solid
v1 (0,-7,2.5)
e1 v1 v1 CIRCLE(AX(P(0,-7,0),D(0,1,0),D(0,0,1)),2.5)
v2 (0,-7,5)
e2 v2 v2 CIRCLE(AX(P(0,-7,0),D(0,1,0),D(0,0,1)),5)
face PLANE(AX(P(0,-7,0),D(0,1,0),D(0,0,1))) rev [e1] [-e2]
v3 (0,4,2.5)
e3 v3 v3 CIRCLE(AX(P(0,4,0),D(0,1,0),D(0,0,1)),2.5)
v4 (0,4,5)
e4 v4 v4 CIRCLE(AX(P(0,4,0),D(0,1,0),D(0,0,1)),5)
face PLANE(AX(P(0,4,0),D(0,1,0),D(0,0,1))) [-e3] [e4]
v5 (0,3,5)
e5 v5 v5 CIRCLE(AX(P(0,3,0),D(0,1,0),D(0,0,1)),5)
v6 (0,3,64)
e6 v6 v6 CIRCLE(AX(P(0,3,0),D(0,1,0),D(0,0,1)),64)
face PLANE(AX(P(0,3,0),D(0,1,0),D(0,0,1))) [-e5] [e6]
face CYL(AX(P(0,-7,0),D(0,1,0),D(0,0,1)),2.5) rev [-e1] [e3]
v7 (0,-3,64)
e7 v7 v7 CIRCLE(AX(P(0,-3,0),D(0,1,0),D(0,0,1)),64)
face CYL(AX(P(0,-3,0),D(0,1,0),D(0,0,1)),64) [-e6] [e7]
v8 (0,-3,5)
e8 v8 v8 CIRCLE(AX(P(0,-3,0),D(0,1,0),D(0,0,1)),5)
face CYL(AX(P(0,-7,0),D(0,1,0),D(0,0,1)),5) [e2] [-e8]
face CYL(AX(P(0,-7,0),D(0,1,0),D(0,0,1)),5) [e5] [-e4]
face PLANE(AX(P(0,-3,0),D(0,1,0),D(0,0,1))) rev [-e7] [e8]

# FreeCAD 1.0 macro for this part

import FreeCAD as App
import Part
import Sketcher
from FreeCAD import Vector

doc = App.newDocument("Part")
params = doc.addObject("Spreadsheet::Sheet", "Params")
for row, (alias, value) in enumerate([
    ("sketch1_diameter", "128 mm"),
    ("pad1_length", "3 mm"),
    ("pad1_length2", "3 mm"),
    ("sketch2_diameter", "10 mm"),
    ("pad2_length", "4 mm"),
    ("pad2_length2", "7 mm"),
    ("sketch3_diameter", "5 mm"),
], start=1):
    params.set(f"A{row}", alias)
    params.set(f"B{row}", "=" + value)
    params.setAlias(f"B{row}", alias)

body = doc.addObject("PartDesign::Body", "Body")

# Sketch on XZ plane
sketch1 = doc.addObject("Sketcher::SketchObject", "Sketch")
body.addObject(sketch1)
sketch1.AttachmentSupport = (doc.XZ_Plane, [""])
sketch1.MapMode = "FlatFace"
sketch1.addGeometry(Part.Circle(Vector(0, 0, 0), Vector(0, 0, 1), 64), False)
sketch1.addConstraint([
    Sketcher.Constraint("Coincident", 0, 3, -1, 1),
    Sketcher.Constraint("Diameter", 0, 128.0),
])
sketch1.setExpression("Constraints[1]", "Params.sketch1_diameter")
pad1 = doc.addObject("PartDesign::Pad", "Pad")
body.addObject(pad1)
pad1.Profile = sketch1
pad1.Type = "TwoLengths"
pad1.setExpression("Length", "Params.pad1_length")
pad1.setExpression("Length2", "Params.pad1_length2")
pad1.Reversed = True

# Sketch on XZ plane
sketch2 = doc.addObject("Sketcher::SketchObject", "Sketch001")
body.addObject(sketch2)
sketch2.AttachmentSupport = (doc.XZ_Plane, [""])
sketch2.MapMode = "FlatFace"
sketch2.addGeometry(Part.Circle(Vector(0, 0, 0), Vector(0, 0, 1), 5), False)
sketch2.addConstraint([
    Sketcher.Constraint("Coincident", 0, 3, -1, 1),
    Sketcher.Constraint("Diameter", 0, 10.0),
])
sketch2.setExpression("Constraints[1]", "Params.sketch2_diameter")
pad2 = doc.addObject("PartDesign::Pad", "Pad001")
body.addObject(pad2)
pad2.Profile = sketch2
pad2.Type = "TwoLengths"
pad2.setExpression("Length", "Params.pad2_length")
pad2.setExpression("Length2", "Params.pad2_length2")
pad2.Reversed = True

# Sketch on XZ plane
sketch3 = doc.addObject("Sketcher::SketchObject", "Sketch002")
body.addObject(sketch3)
sketch3.AttachmentSupport = (doc.XZ_Plane, [""])
sketch3.MapMode = "FlatFace"
sketch3.AttachmentOffset = App.Placement(Vector(0, 0, -4), App.Rotation())
sketch3.addGeometry(Part.Circle(Vector(0, 0, 0), Vector(0, 0, 1), 2.5), False)
sketch3.addConstraint([
    Sketcher.Constraint("Coincident", 0, 3, -1, 1),
    Sketcher.Constraint("Diameter", 0, 5.0),
])
sketch3.setExpression("Constraints[1]", "Params.sketch3_diameter")
pocket1 = doc.addObject("PartDesign::Pocket", "Pocket")
body.addObject(pocket1)
pocket1.Profile = sketch3
pocket1.Type = "ThroughAll"
pocket1.Reversed = True

doc.recompute()
